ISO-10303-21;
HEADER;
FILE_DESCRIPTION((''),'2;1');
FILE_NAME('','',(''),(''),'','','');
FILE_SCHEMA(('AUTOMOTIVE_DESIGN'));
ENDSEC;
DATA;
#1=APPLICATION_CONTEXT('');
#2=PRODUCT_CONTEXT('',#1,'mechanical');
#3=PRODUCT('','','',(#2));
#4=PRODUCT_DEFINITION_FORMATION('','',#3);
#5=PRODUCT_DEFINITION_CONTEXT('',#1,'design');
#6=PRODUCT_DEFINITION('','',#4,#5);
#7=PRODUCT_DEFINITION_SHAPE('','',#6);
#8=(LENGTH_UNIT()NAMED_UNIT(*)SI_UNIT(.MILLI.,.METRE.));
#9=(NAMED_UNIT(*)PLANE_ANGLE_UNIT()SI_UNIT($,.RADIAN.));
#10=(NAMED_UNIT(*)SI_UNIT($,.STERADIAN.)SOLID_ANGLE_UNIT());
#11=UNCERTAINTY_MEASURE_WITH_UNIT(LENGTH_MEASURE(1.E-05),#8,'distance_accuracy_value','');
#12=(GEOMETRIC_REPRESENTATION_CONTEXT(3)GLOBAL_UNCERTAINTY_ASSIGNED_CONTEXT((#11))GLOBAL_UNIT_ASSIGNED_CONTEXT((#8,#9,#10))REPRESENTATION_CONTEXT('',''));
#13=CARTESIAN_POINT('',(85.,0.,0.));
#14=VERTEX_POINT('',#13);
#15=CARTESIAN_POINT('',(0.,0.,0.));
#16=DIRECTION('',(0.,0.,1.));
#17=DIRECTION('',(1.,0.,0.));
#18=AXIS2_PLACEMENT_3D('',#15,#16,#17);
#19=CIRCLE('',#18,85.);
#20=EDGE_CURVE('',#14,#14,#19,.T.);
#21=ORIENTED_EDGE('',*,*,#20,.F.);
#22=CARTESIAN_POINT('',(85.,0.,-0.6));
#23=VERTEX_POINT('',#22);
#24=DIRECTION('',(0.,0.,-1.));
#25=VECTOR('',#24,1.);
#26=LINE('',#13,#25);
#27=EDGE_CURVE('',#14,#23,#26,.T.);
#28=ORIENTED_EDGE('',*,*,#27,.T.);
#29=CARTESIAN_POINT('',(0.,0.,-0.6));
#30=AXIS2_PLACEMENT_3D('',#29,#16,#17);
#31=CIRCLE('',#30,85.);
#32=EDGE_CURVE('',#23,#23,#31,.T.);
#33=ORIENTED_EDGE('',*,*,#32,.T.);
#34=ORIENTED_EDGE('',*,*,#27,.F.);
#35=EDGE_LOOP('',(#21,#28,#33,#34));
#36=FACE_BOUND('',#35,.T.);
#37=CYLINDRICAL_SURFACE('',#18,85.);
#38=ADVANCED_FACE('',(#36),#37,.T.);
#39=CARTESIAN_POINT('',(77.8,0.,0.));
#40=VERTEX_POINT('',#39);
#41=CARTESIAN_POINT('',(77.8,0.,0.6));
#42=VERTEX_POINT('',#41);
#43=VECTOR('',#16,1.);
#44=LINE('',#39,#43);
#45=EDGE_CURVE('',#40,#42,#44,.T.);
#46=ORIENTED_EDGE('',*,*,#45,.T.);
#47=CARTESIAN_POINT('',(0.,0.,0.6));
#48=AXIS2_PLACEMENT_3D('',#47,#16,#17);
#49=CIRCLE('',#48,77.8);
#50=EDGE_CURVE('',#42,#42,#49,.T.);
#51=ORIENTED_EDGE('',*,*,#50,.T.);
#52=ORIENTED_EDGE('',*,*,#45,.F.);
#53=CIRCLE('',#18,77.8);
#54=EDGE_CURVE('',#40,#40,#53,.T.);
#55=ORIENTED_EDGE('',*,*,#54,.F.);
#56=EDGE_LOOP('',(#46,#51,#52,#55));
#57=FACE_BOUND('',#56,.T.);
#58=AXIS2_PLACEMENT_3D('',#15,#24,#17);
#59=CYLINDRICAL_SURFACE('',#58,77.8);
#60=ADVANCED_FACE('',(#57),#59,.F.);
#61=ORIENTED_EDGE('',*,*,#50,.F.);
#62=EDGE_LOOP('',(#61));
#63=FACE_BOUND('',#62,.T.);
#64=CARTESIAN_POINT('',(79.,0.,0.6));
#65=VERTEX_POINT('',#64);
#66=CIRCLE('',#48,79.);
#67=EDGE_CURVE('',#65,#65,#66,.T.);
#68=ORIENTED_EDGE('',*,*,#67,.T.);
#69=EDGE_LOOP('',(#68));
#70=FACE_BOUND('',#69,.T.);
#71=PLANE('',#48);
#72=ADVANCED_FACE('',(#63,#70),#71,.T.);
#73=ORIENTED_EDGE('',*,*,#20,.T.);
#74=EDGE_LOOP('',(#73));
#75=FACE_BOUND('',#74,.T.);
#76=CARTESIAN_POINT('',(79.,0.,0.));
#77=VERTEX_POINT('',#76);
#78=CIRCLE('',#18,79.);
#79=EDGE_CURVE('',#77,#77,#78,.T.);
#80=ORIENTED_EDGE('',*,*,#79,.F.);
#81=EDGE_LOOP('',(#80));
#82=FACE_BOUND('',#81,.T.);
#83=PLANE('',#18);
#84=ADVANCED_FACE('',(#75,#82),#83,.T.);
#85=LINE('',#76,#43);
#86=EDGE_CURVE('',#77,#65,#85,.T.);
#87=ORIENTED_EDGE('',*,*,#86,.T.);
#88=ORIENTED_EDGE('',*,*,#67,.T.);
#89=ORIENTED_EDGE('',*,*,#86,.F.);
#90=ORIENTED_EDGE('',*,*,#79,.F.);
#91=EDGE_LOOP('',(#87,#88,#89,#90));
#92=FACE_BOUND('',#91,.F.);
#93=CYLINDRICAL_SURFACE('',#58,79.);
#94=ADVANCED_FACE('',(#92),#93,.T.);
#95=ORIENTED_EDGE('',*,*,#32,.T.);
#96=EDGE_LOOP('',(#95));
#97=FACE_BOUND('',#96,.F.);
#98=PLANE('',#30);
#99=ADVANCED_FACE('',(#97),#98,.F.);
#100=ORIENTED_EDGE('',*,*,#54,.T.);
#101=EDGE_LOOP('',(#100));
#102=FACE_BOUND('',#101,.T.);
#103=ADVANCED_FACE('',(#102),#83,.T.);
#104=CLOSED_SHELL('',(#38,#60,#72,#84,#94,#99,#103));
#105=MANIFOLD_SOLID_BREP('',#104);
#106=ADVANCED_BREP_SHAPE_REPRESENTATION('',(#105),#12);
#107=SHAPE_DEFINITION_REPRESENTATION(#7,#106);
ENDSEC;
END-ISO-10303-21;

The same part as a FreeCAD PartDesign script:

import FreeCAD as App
import Part
import Sketcher
Q = App.Units.Quantity

doc = App.newDocument("Part")
body = doc.addObject("PartDesign::Body", "Body")

# Sketch on XY plane
sketch1 = doc.addObject("Sketcher::SketchObject", "Sketch")
body.addObject(sketch1)
sketch1.AttachmentSupport = (doc.XY_Plane, [""])
sketch1.MapMode = "FlatFace"
sketch1.addGeometry(Part.Circle(App.Vector(0, 0, 0), App.Vector(0, 0, 1), 79), False)
sketch1.addGeometry(Part.Circle(App.Vector(0, 0, 0), App.Vector(0, 0, 1), 78), False)
sketch1.addConstraint(Sketcher.Constraint("Coincident", 0, 3, -1, 1))
sketch1.addConstraint(Sketcher.Constraint("Coincident", 1, 3, -1, 1))
sketch1.addConstraint(Sketcher.Constraint("Diameter", 0, Q("158 mm")))
sketch1.addConstraint(Sketcher.Constraint("Diameter", 1, Q("155.6 mm")))
pad1 = doc.addObject("PartDesign::Pad", "Pad")
body.addObject(pad1)
pad1.Profile = sketch1
pad1.Length = 0.6

# Sketch on XY plane
sketch2 = doc.addObject("Sketcher::SketchObject", "Sketch001")
body.addObject(sketch2)
sketch2.AttachmentSupport = (doc.XY_Plane, [""])
sketch2.MapMode = "FlatFace"
sketch2.addGeometry(Part.Circle(App.Vector(0, 0, 0), App.Vector(0, 0, 1), 85), False)
sketch2.addConstraint(Sketcher.Constraint("Coincident", 0, 3, -1, 1))
sketch2.addConstraint(Sketcher.Constraint("Diameter", 0, Q("170 mm")))
pad2 = doc.addObject("PartDesign::Pad", "Pad001")
body.addObject(pad2)
pad2.Profile = sketch2
pad2.Length = 0.6
pad2.Reversed = True

doc.recompute()
